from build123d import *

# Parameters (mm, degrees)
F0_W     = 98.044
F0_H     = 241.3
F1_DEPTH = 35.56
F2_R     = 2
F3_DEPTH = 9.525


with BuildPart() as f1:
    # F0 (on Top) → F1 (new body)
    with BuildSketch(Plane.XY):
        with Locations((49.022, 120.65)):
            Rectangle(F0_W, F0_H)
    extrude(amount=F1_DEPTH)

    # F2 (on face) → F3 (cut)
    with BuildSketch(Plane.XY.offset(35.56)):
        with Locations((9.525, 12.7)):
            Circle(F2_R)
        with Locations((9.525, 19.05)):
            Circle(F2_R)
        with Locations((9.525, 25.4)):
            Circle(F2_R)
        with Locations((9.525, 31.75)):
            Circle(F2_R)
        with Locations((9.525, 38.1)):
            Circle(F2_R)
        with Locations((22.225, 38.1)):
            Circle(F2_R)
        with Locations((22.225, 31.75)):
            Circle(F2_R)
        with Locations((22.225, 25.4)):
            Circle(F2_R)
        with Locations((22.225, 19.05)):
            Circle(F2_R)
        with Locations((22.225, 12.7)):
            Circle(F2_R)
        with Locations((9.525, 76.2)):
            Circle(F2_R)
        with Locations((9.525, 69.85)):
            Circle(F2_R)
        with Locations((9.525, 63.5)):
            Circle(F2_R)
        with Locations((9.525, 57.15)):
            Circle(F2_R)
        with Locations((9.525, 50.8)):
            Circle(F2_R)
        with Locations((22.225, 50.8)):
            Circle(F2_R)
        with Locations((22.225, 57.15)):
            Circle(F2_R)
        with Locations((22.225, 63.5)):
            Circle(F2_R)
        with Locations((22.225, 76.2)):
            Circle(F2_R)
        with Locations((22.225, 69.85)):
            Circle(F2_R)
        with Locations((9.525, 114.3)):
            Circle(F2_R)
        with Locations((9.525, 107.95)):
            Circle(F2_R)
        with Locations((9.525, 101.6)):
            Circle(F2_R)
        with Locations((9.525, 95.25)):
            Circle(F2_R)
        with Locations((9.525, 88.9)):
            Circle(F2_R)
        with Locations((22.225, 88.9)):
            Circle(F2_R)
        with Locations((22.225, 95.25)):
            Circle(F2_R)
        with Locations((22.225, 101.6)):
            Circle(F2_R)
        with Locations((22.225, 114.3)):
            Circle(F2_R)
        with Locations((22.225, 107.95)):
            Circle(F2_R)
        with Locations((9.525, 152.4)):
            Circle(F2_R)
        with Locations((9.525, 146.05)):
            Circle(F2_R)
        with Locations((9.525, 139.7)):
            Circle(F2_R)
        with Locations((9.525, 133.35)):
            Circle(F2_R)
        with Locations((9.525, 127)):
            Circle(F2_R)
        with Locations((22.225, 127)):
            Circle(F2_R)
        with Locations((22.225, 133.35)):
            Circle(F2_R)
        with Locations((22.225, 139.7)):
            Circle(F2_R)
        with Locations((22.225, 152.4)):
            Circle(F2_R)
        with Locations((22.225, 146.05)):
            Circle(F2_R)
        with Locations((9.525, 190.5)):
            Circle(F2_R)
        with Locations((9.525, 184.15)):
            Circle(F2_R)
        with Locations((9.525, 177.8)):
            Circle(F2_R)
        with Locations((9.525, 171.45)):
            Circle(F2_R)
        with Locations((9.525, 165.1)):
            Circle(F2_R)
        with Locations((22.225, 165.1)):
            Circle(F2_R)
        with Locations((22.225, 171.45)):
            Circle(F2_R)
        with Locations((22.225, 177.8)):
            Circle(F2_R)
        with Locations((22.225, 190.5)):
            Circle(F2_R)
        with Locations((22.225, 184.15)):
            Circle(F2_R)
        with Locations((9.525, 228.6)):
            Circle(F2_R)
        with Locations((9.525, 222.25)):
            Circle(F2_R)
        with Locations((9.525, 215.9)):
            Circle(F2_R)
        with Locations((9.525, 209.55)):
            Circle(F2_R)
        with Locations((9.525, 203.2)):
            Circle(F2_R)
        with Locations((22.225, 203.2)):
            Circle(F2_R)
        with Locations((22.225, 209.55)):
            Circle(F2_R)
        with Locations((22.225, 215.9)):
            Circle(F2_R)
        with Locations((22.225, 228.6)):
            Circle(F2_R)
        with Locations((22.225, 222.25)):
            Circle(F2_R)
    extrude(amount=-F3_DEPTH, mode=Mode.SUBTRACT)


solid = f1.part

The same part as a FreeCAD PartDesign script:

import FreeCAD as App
import Part
import Sketcher

V = App.Vector
Q = App.Units.Quantity

doc = App.newDocument("Part")
body = doc.addObject("PartDesign::Body", "Body")

sketch1 = doc.addObject("Sketcher::SketchObject", "Sketch")
body.addObject(sketch1)
sketch1.AttachmentSupport = (doc.XY_Plane, [""])
sketch1.MapMode = "FlatFace"
sketch1.addGeometry(Part.LineSegment(V(0, 241.3, 0), V(0, 0, 0)), False)
sketch1.addGeometry(Part.LineSegment(V(0, 0, 0), V(98.044, 0, 0)), False)
sketch1.addGeometry(Part.LineSegment(V(98.044, 0, 0), V(98.044, 241.3, 0)), False)
sketch1.addGeometry(Part.LineSegment(V(98.044, 241.3, 0), V(0, 241.3, 0)), False)
sketch1.addConstraint(Sketcher.Constraint("Coincident", 0, 2, 1, 1))
sketch1.addConstraint(Sketcher.Constraint("Coincident", 1, 2, 2, 1))
sketch1.addConstraint(Sketcher.Constraint("Coincident", 2, 2, 3, 1))
sketch1.addConstraint(Sketcher.Constraint("Coincident", 3, 2, 0, 1))
sketch1.addConstraint(Sketcher.Constraint("Vertical", 0))
sketch1.addConstraint(Sketcher.Constraint("Horizontal", 1))
sketch1.addConstraint(Sketcher.Constraint("Vertical", 2))
sketch1.addConstraint(Sketcher.Constraint("Horizontal", 3))
sketch1.addConstraint(Sketcher.Constraint("Coincident", 0, 2, -1, 1))
sketch1.addConstraint(Sketcher.Constraint("DistanceY", 0, 2, 0, 1, Q("9.5 in")))
sketch1.addConstraint(Sketcher.Constraint("DistanceX", 1, 1, 1, 2, Q("3.86 in")))
pad1 = doc.addObject("PartDesign::Pad", "Pad")
body.addObject(pad1)
pad1.Profile = sketch1
pad1.Length = Q("1.4 in")

sketch2 = doc.addObject("Sketcher::SketchObject", "Sketch001")
body.addObject(sketch2)
sketch2.AttachmentSupport = (doc.XY_Plane, [""])
sketch2.MapMode = "FlatFace"
sketch2.AttachmentOffset = App.Placement(V(0, 0, 1.4 * 25.4), App.Rotation())
sketch2.addGeometry(Part.Circle(V(9.525, 12.7, 0), V(0, 0, 1), 2), False)
sketch2.addGeometry(Part.Circle(V(9.525, 19.05, 0), V(0, 0, 1), 2), False)
sketch2.addGeometry(Part.Circle(V(9.525, 25.4, 0), V(0, 0, 1), 2), False)
sketch2.addGeometry(Part.Circle(V(9.525, 31.75, 0), V(0, 0, 1), 2), False)
sketch2.addGeometry(Part.Circle(V(9.525, 38.1, 0), V(0, 0, 1), 2), False)
sketch2.addGeometry(Part.Circle(V(22.225, 38.1, 0), V(0, 0, 1), 2), False)
sketch2.addGeometry(Part.Circle(V(22.225, 31.75, 0), V(0, 0, 1), 2), False)
sketch2.addGeometry(Part.Circle(V(22.225, 25.4, 0), V(0, 0, 1), 2), False)
sketch2.addGeometry(Part.Circle(V(22.225, 19.05, 0), V(0, 0, 1), 2), False)
sketch2.addGeometry(Part.Circle(V(22.225, 12.7, 0), V(0, 0, 1), 2), False)
sketch2.addGeometry(Part.Circle(V(9.525, 76.2, 0), V(0, 0, 1), 2), False)
sketch2.addGeometry(Part.Circle(V(9.525, 69.85, 0), V(0, 0, 1), 2), False)
sketch2.addGeometry(Part.Circle(V(9.525, 63.5, 0), V(0, 0, 1), 2), False)
sketch2.addGeometry(Part.Circle(V(9.525, 57.15, 0), V(0, 0, 1), 2), False)
sketch2.addGeometry(Part.Circle(V(9.525, 50.8, 0), V(0, 0, 1), 2), False)
sketch2.addGeometry(Part.Circle(V(22.225, 50.8, 0), V(0, 0, 1), 2), False)
sketch2.addGeometry(Part.Circle(V(22.225, 57.15, 0), V(0, 0, 1), 2), False)
sketch2.addGeometry(Part.Circle(V(22.225, 63.5, 0), V(0, 0, 1), 2), False)
sketch2.addGeometry(Part.Circle(V(22.225, 76.2, 0), V(0, 0, 1), 2), False)
sketch2.addGeometry(Part.Circle(V(22.225, 69.85, 0), V(0, 0, 1), 2), False)
sketch2.addGeometry(Part.Circle(V(9.525, 114.3, 0), V(0, 0, 1), 2), False)
sketch2.addGeometry(Part.Circle(V(9.525, 107.95, 0), V(0, 0, 1), 2), False)
sketch2.addGeometry(Part.Circle(V(9.525, 101.6, 0), V(0, 0, 1), 2), False)
sketch2.addGeometry(Part.Circle(V(9.525, 95.25, 0), V(0, 0, 1), 2), False)
sketch2.addGeometry(Part.Circle(V(9.525, 88.9, 0), V(0, 0, 1), 2), False)
sketch2.addGeometry(Part.Circle(V(22.225, 88.9, 0), V(0, 0, 1), 2), False)
sketch2.addGeometry(Part.Circle(V(22.225, 95.25, 0), V(0, 0, 1), 2), False)
sketch2.addGeometry(Part.Circle(V(22.225, 101.6, 0), V(0, 0, 1), 2), False)
sketch2.addGeometry(Part.Circle(V(22.225, 114.3, 0), V(0, 0, 1), 2), False)
sketch2.addGeometry(Part.Circle(V(22.225, 107.95, 0), V(0, 0, 1), 2), False)
sketch2.addGeometry(Part.Circle(V(9.525, 152.4, 0), V(0, 0, 1), 2), False)
sketch2.addGeometry(Part.Circle(V(9.525, 146.05, 0), V(0, 0, 1), 2), False)
sketch2.addGeometry(Part.Circle(V(9.525, 139.7, 0), V(0, 0, 1), 2), False)
sketch2.addGeometry(Part.Circle(V(9.525, 133.35, 0), V(0, 0, 1), 2), False)
sketch2.addGeometry(Part.Circle(V(9.525, 127, 0), V(0, 0, 1), 2), False)
sketch2.addGeometry(Part.Circle(V(22.225, 127, 0), V(0, 0, 1), 2), False)
sketch2.addGeometry(Part.Circle(V(22.225, 133.35, 0), V(0, 0, 1), 2), False)
sketch2.addGeometry(Part.Circle(V(22.225, 139.7, 0), V(0, 0, 1), 2), False)
sketch2.addGeometry(Part.Circle(V(22.225, 152.4, 0), V(0, 0, 1), 2), False)
sketch2.addGeometry(Part.Circle(V(22.225, 146.05, 0), V(0, 0, 1), 2), False)
sketch2.addGeometry(Part.Circle(V(9.525, 190.5, 0), V(0, 0, 1), 2), False)
sketch2.addGeometry(Part.Circle(V(9.525, 184.15, 0), V(0, 0, 1), 2), False)
sketch2.addGeometry(Part.Circle(V(9.525, 177.8, 0), V(0, 0, 1), 2), False)
sketch2.addGeometry(Part.Circle(V(9.525, 171.45, 0), V(0, 0, 1), 2), False)
sketch2.addGeometry(Part.Circle(V(9.525, 165.1, 0), V(0, 0, 1), 2), False)
sketch2.addGeometry(Part.Circle(V(22.225, 165.1, 0), V(0, 0, 1), 2), False)
sketch2.addGeometry(Part.Circle(V(22.225, 171.45, 0), V(0, 0, 1), 2), False)
sketch2.addGeometry(Part.Circle(V(22.225, 177.8, 0), V(0, 0, 1), 2), False)
sketch2.addGeometry(Part.Circle(V(22.225, 190.5, 0), V(0, 0, 1), 2), False)
sketch2.addGeometry(Part.Circle(V(22.225, 184.15, 0), V(0, 0, 1), 2), False)
sketch2.addGeometry(Part.Circle(V(9.525, 228.6, 0), V(0, 0, 1), 2), False)
sketch2.addGeometry(Part.Circle(V(9.525, 222.25, 0), V(0, 0, 1), 2), False)
sketch2.addGeometry(Part.Circle(V(9.525, 215.9, 0), V(0, 0, 1), 2), False)
sketch2.addGeometry(Part.Circle(V(9.525, 209.55, 0), V(0, 0, 1), 2), False)
sketch2.addGeometry(Part.Circle(V(9.525, 203.2, 0), V(0, 0, 1), 2), False)
sketch2.addGeometry(Part.Circle(V(22.225, 203.2, 0), V(0, 0, 1), 2), False)
sketch2.addGeometry(Part.Circle(V(22.225, 209.55, 0), V(0, 0, 1), 2), False)
sketch2.addGeometry(Part.Circle(V(22.225, 215.9, 0), V(0, 0, 1), 2), False)
sketch2.addGeometry(Part.Circle(V(22.225, 228.6, 0), V(0, 0, 1), 2), False)
sketch2.addGeometry(Part.Circle(V(22.225, 222.25, 0), V(0, 0, 1), 2), False)
sketch2.addConstraint(Sketcher.Constraint("Equal", 0, 1))
sketch2.addConstraint(Sketcher.Constraint("Equal", 1, 2))
sketch2.addConstraint(Sketcher.Constraint("Equal", 2, 3))
sketch2.addConstraint(Sketcher.Constraint("Equal", 3, 4))
sketch2.addConstraint(Sketcher.Constraint("Equal", 4, 5))
sketch2.addConstraint(Sketcher.Constraint("Equal", 5, 6))
sketch2.addConstraint(Sketcher.Constraint("Equal", 6, 7))
sketch2.addConstraint(Sketcher.Constraint("Equal", 7, 8))
sketch2.addConstraint(Sketcher.Constraint("Equal", 8, 9))
sketch2.addConstraint(Sketcher.Constraint("Equal", 9, 10))
sketch2.addConstraint(Sketcher.Constraint("Equal", 10, 11))
sketch2.addConstraint(Sketcher.Constraint("Equal", 11, 12))
sketch2.addConstraint(Sketcher.Constraint("Equal", 12, 13))
sketch2.addConstraint(Sketcher.Constraint("Equal", 13, 14))
sketch2.addConstraint(Sketcher.Constraint("Equal", 14, 15))
sketch2.addConstraint(Sketcher.Constraint("Equal", 15, 16))
sketch2.addConstraint(Sketcher.Constraint("Equal", 16, 17))
sketch2.addConstraint(Sketcher.Constraint("Equal", 17, 18))
sketch2.addConstraint(Sketcher.Constraint("Equal", 18, 19))
sketch2.addConstraint(Sketcher.Constraint("Equal", 19, 20))
sketch2.addConstraint(Sketcher.Constraint("Equal", 20, 21))
sketch2.addConstraint(Sketcher.Constraint("Equal", 21, 22))
sketch2.addConstraint(Sketcher.Constraint("Equal", 22, 23))
sketch2.addConstraint(Sketcher.Constraint("Equal", 23, 24))
sketch2.addConstraint(Sketcher.Constraint("Equal", 24, 25))
sketch2.addConstraint(Sketcher.Constraint("Equal", 25, 26))
sketch2.addConstraint(Sketcher.Constraint("Equal", 26, 27))
sketch2.addConstraint(Sketcher.Constraint("Equal", 27, 28))
sketch2.addConstraint(Sketcher.Constraint("Equal", 28, 29))
sketch2.addConstraint(Sketcher.Constraint("Equal", 29, 30))
sketch2.addConstraint(Sketcher.Constraint("Equal", 30, 31))
sketch2.addConstraint(Sketcher.Constraint("Equal", 31, 32))
sketch2.addConstraint(Sketcher.Constraint("Equal", 32, 33))
sketch2.addConstraint(Sketcher.Constraint("Equal", 33, 34))
sketch2.addConstraint(Sketcher.Constraint("Equal", 34, 35))
sketch2.addConstraint(Sketcher.Constraint("Equal", 35, 36))
sketch2.addConstraint(Sketcher.Constraint("Equal", 36, 37))
sketch2.addConstraint(Sketcher.Constraint("Equal", 37, 38))
sketch2.addConstraint(Sketcher.Constraint("Equal", 38, 39))
sketch2.addConstraint(Sketcher.Constraint("Equal", 39, 40))
sketch2.addConstraint(Sketcher.Constraint("Equal", 40, 41))
sketch2.addConstraint(Sketcher.Constraint("Equal", 41, 42))
sketch2.addConstraint(Sketcher.Constraint("Equal", 42, 43))
sketch2.addConstraint(Sketcher.Constraint("Equal", 43, 44))
sketch2.addConstraint(Sketcher.Constraint("Equal", 44, 45))
sketch2.addConstraint(Sketcher.Constraint("Equal", 45, 46))
sketch2.addConstraint(Sketcher.Constraint("Equal", 46, 47))
sketch2.addConstraint(Sketcher.Constraint("Equal", 47, 48))
sketch2.addConstraint(Sketcher.Constraint("Equal", 48, 49))
sketch2.addConstraint(Sketcher.Constraint("Equal", 49, 50))
sketch2.addConstraint(Sketcher.Constraint("Equal", 50, 51))
sketch2.addConstraint(Sketcher.Constraint("Equal", 51, 52))
sketch2.addConstraint(Sketcher.Constraint("Equal", 52, 53))
sketch2.addConstraint(Sketcher.Constraint("Equal", 53, 54))
sketch2.addConstraint(Sketcher.Constraint("Equal", 54, 55))
sketch2.addConstraint(Sketcher.Constraint("Equal", 55, 56))
sketch2.addConstraint(Sketcher.Constraint("Equal", 56, 57))
sketch2.addConstraint(Sketcher.Constraint("Equal", 57, 58))
sketch2.addConstraint(Sketcher.Constraint("Equal", 58, 59))
sketch2.addConstraint(Sketcher.Constraint("Horizontal", 4, 3, 5, 3))
sketch2.addConstraint(Sketcher.Constraint("Horizontal", 3, 3, 6, 3))
sketch2.addConstraint(Sketcher.Constraint("Horizontal", 2, 3, 7, 3))
sketch2.addConstraint(Sketcher.Constraint("Horizontal", 1, 3, 8, 3))
sketch2.addConstraint(Sketcher.Constraint("Horizontal", 0, 3, 9, 3))
sketch2.addConstraint(Sketcher.Constraint("Horizontal", 14, 3, 15, 3))
sketch2.addConstraint(Sketcher.Constraint("Horizontal", 13, 3, 16, 3))
sketch2.addConstraint(Sketcher.Constraint("Horizontal", 12, 3, 17, 3))
sketch2.addConstraint(Sketcher.Constraint("Horizontal", 10, 3, 18, 3))
sketch2.addConstraint(Sketcher.Constraint("Horizontal", 11, 3, 19, 3))
sketch2.addConstraint(Sketcher.Constraint("Horizontal", 24, 3, 25, 3))
sketch2.addConstraint(Sketcher.Constraint("Horizontal", 23, 3, 26, 3))
sketch2.addConstraint(Sketcher.Constraint("Horizontal", 22, 3, 27, 3))
sketch2.addConstraint(Sketcher.Constraint("Horizontal", 20, 3, 28, 3))
sketch2.addConstraint(Sketcher.Constraint("Horizontal", 21, 3, 29, 3))
sketch2.addConstraint(Sketcher.Constraint("Horizontal", 34, 3, 35, 3))
sketch2.addConstraint(Sketcher.Constraint("Horizontal", 33, 3, 36, 3))
sketch2.addConstraint(Sketcher.Constraint("Horizontal", 32, 3, 37, 3))
sketch2.addConstraint(Sketcher.Constraint("Horizontal", 30, 3, 38, 3))
sketch2.addConstraint(Sketcher.Constraint("Horizontal", 31, 3, 39, 3))
sketch2.addConstraint(Sketcher.Constraint("Horizontal", 44, 3, 45, 3))
sketch2.addConstraint(Sketcher.Constraint("Horizontal", 43, 3, 46, 3))
sketch2.addConstraint(Sketcher.Constraint("Horizontal", 42, 3, 47, 3))
sketch2.addConstraint(Sketcher.Constraint("Horizontal", 40, 3, 48, 3))
sketch2.addConstraint(Sketcher.Constraint("Horizontal", 41, 3, 49, 3))
sketch2.addConstraint(Sketcher.Constraint("Horizontal", 54, 3, 55, 3))
sketch2.addConstraint(Sketcher.Constraint("Horizontal", 53, 3, 56, 3))
sketch2.addConstraint(Sketcher.Constraint("Horizontal", 52, 3, 57, 3))
sketch2.addConstraint(Sketcher.Constraint("Horizontal", 50, 3, 58, 3))
sketch2.addConstraint(Sketcher.Constraint("Horizontal", 51, 3, 59, 3))
sketch2.addConstraint(Sketcher.Constraint("Vertical", 0, 3, 1, 3))
sketch2.addConstraint(Sketcher.Constraint("Vertical", 1, 3, 2, 3))
sketch2.addConstraint(Sketcher.Constraint("Vertical", 2, 3, 3, 3))
sketch2.addConstraint(Sketcher.Constraint("Vertical", 3, 3, 4, 3))
sketch2.addConstraint(Sketcher.Constraint("Vertical", 5, 3, 6, 3))
sketch2.addConstraint(Sketcher.Constraint("Vertical", 6, 3, 7, 3))
sketch2.addConstraint(Sketcher.Constraint("Vertical", 7, 3, 8, 3))
sketch2.addConstraint(Sketcher.Constraint("Vertical", 8, 3, 9, 3))
sketch2.addConstraint(Sketcher.Constraint("Vertical", 4, 3, 10, 3))
sketch2.addConstraint(Sketcher.Constraint("Vertical", 10, 3, 11, 3))
sketch2.addConstraint(Sketcher.Constraint("Vertical", 11, 3, 12, 3))
sketch2.addConstraint(Sketcher.Constraint("Vertical", 12, 3, 13, 3))
sketch2.addConstraint(Sketcher.Constraint("Vertical", 13, 3, 14, 3))
sketch2.addConstraint(Sketcher.Constraint("Vertical", 9, 3, 15, 3))
sketch2.addConstraint(Sketcher.Constraint("Vertical", 15, 3, 16, 3))
sketch2.addConstraint(Sketcher.Constraint("Vertical", 16, 3, 17, 3))
sketch2.addConstraint(Sketcher.Constraint("Vertical", 17, 3, 18, 3))
sketch2.addConstraint(Sketcher.Constraint("Vertical", 18, 3, 19, 3))
sketch2.addConstraint(Sketcher.Constraint("Vertical", 14, 3, 20, 3))
sketch2.addConstraint(Sketcher.Constraint("Vertical", 20, 3, 21, 3))
sketch2.addConstraint(Sketcher.Constraint("Vertical", 21, 3, 22, 3))
sketch2.addConstraint(Sketcher.Constraint("Vertical", 22, 3, 23, 3))
sketch2.addConstraint(Sketcher.Constraint("Vertical", 23, 3, 24, 3))
sketch2.addConstraint(Sketcher.Constraint("Vertical", 19, 3, 25, 3))
sketch2.addConstraint(Sketcher.Constraint("Vertical", 25, 3, 26, 3))
sketch2.addConstraint(Sketcher.Constraint("Vertical", 26, 3, 27, 3))
sketch2.addConstraint(Sketcher.Constraint("Vertical", 27, 3, 28, 3))
sketch2.addConstraint(Sketcher.Constraint("Vertical", 28, 3, 29, 3))
sketch2.addConstraint(Sketcher.Constraint("Vertical", 24, 3, 30, 3))
sketch2.addConstraint(Sketcher.Constraint("Vertical", 30, 3, 31, 3))
sketch2.addConstraint(Sketcher.Constraint("Vertical", 31, 3, 32, 3))
sketch2.addConstraint(Sketcher.Constraint("Vertical", 32, 3, 33, 3))
sketch2.addConstraint(Sketcher.Constraint("Vertical", 33, 3, 34, 3))
sketch2.addConstraint(Sketcher.Constraint("Vertical", 29, 3, 35, 3))
sketch2.addConstraint(Sketcher.Constraint("Vertical", 35, 3, 36, 3))
sketch2.addConstraint(Sketcher.Constraint("Vertical", 36, 3, 37, 3))
sketch2.addConstraint(Sketcher.Constraint("Vertical", 37, 3, 38, 3))
sketch2.addConstraint(Sketcher.Constraint("Vertical", 38, 3, 39, 3))
sketch2.addConstraint(Sketcher.Constraint("Vertical", 34, 3, 40, 3))
sketch2.addConstraint(Sketcher.Constraint("Vertical", 40, 3, 41, 3))
sketch2.addConstraint(Sketcher.Constraint("Vertical", 41, 3, 42, 3))
sketch2.addConstraint(Sketcher.Constraint("Vertical", 42, 3, 43, 3))
sketch2.addConstraint(Sketcher.Constraint("Vertical", 43, 3, 44, 3))
sketch2.addConstraint(Sketcher.Constraint("Vertical", 39, 3, 45, 3))
sketch2.addConstraint(Sketcher.Constraint("Vertical", 45, 3, 46, 3))
sketch2.addConstraint(Sketcher.Constraint("Vertical", 46, 3, 47, 3))
sketch2.addConstraint(Sketcher.Constraint("Vertical", 47, 3, 48, 3))
sketch2.addConstraint(Sketcher.Constraint("Vertical", 48, 3, 49, 3))
sketch2.addConstraint(Sketcher.Constraint("Vertical", 44, 3, 50, 3))
sketch2.addConstraint(Sketcher.Constraint("Vertical", 50, 3, 51, 3))
sketch2.addConstraint(Sketcher.Constraint("Vertical", 51, 3, 52, 3))
sketch2.addConstraint(Sketcher.Constraint("Vertical", 52, 3, 53, 3))
sketch2.addConstraint(Sketcher.Constraint("Vertical", 53, 3, 54, 3))
sketch2.addConstraint(Sketcher.Constraint("Vertical", 49, 3, 55, 3))
sketch2.addConstraint(Sketcher.Constraint("Vertical", 55, 3, 56, 3))
sketch2.addConstraint(Sketcher.Constraint("Vertical", 56, 3, 57, 3))
sketch2.addConstraint(Sketcher.Constraint("Vertical", 57, 3, 58, 3))
sketch2.addConstraint(Sketcher.Constraint("Vertical", 58, 3, 59, 3))
sketch2.addConstraint(Sketcher.Constraint("DistanceY", -1, 1, 2, 3, Q("1 in")))
sketch2.addConstraint(Sketcher.Constraint("DistanceY", -1, 1, 10, 3, Q("3 in")))
sketch2.addConstraint(Sketcher.Constraint("DistanceY", -1, 1, 14, 3, Q("2 in")))
sketch2.addConstraint(Sketcher.Constraint("DistanceY", -1, 1, 22, 3, Q("4 in")))
sketch2.addConstraint(Sketcher.Constraint("DistanceY", -1, 1, 30, 3, Q("6 in")))
sketch2.addConstraint(Sketcher.Constraint("DistanceY", -1, 1, 34, 3, Q("5 in")))
sketch2.addConstraint(Sketcher.Constraint("DistanceY", -1, 1, 42, 3, Q("7 in")))
sketch2.addConstraint(Sketcher.Constraint("DistanceY", -1, 1, 50, 3, Q("9 in")))
sketch2.addConstraint(Sketcher.Constraint("DistanceY", -1, 1, 54, 3, Q("8 in")))
sketch2.addConstraint(Sketcher.Constraint("DistanceY", 0, 3, 4, 3, Q("1 in")))
sketch2.addConstraint(Sketcher.Constraint("DistanceY", 4, 3, 12, 3, Q("1 in")))
sketch2.addConstraint(Sketcher.Constraint("DistanceY", 12, 3, 20, 3, Q("2 in")))
sketch2.addConstraint(Sketcher.Constraint("DistanceY", 20, 3, 32, 3, Q("1 in")))
sketch2.addConstraint(Sketcher.Constraint("DistanceY", 32, 3, 40, 3, Q("2 in")))
sketch2.addConstraint(Sketcher.Constraint("DistanceY", 40, 3, 52, 3, Q("1 in")))
sketch2.addConstraint(Sketcher.Constraint("DistanceY", -1, 1, 0, 3, Q("0.5 in")))
sketch2.addConstraint(Sketcher.Constraint("DistanceY", -1, 1, 24, 3, Q("3.5 in")))
sketch2.addConstraint(Sketcher.Constraint("DistanceY", -1, 1, 44, 3, Q("6.5 in")))
sketch2.addConstraint(Sketcher.Constraint("DistanceY", 1, 3, 3, 3, Q("0.5 in")))
sketch2.addConstraint(Sketcher.Constraint("DistanceX", 4, 3, 5, 3, Q("0.5 in")))
sketch2.addConstraint(Sketcher.Constraint("DistanceY", 3, 3, 11, 3, Q("1.5 in")))
sketch2.addConstraint(Sketcher.Constraint("DistanceY", 13, 3, 11, 3, Q("0.5 in")))
sketch2.addConstraint(Sketcher.Constraint("DistanceY", 11, 3, 21, 3, Q("1.5 in")))
sketch2.addConstraint(Sketcher.Constraint("DistanceY", 23, 3, 21, 3, Q("0.5 in")))
sketch2.addConstraint(Sketcher.Constraint("DistanceY", 21, 3, 31, 3, Q("1.5 in")))
sketch2.addConstraint(Sketcher.Constraint("DistanceY", 33, 3, 31, 3, Q("0.5 in")))
sketch2.addConstraint(Sketcher.Constraint("DistanceY", 31, 3, 41, 3, Q("1.5 in")))
sketch2.addConstraint(Sketcher.Constraint("DistanceY", 43, 3, 41, 3, Q("0.5 in")))
sketch2.addConstraint(Sketcher.Constraint("DistanceY", 41, 3, 51, 3, Q("1.5 in")))
sketch2.addConstraint(Sketcher.Constraint("DistanceY", 53, 3, 51, 3, Q("0.5 in")))
sketch2.addConstraint(Sketcher.Constraint("Diameter", 0, 4.0))
sketch2.addConstraint(Sketcher.Constraint("DistanceY", -1, 1, 1, 3, Q("0.75 in")))
sketch2.addConstraint(Sketcher.Constraint("DistanceX", -1, 1, 0, 3, Q("0.375 in")))
pocket1 = doc.addObject("PartDesign::Pocket", "Pocket")
body.addObject(pocket1)
pocket1.Profile = sketch2
pocket1.Length = Q("0.375 in")

doc.recompute()
